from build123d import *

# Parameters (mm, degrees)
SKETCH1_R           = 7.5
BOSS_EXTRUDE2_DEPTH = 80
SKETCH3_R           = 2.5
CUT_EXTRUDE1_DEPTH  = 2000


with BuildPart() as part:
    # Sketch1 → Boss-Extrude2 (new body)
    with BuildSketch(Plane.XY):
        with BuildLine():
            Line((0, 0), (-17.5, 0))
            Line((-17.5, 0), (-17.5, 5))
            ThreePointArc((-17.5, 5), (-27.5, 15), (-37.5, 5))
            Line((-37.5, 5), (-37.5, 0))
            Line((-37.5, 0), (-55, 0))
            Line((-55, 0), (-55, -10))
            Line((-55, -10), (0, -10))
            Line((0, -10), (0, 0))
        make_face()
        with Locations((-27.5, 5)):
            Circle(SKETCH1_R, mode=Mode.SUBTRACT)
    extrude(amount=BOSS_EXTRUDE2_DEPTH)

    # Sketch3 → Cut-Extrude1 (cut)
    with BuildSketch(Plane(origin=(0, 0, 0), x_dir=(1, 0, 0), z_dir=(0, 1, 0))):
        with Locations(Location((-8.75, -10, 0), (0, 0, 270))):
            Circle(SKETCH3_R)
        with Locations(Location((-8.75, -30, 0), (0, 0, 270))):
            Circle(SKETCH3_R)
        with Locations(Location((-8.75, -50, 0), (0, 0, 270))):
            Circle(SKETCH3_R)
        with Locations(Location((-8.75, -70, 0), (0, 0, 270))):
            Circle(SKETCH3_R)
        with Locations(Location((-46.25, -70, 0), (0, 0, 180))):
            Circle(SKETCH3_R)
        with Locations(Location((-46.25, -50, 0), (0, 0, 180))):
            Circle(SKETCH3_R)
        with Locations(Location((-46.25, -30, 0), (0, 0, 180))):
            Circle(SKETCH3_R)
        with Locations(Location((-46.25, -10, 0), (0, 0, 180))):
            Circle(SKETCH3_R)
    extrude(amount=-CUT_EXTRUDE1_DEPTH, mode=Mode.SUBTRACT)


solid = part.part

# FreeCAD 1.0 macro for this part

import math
import FreeCAD as App
import Part
import Sketcher

V = App.Vector

doc = App.newDocument("Part")
body = doc.addObject("PartDesign::Body", "Body")

# Sketch on XY plane
sketch1 = doc.addObject("Sketcher::SketchObject", "Sketch")
body.addObject(sketch1)
sketch1.AttachmentSupport = (doc.XY_Plane, [""])
sketch1.MapMode = "FlatFace"
sketch1.addGeometry([
    Part.LineSegment(V(0, 0, 0), V(-17.5, 0, 0)),  # 0
    Part.LineSegment(V(-17.5, 0, 0), V(-17.5, 5, 0)),  # 1
    Part.ArcOfCircle(Part.Circle(V(-27.5, 5, 0), V(0, 0, 1), 10), math.radians(0), math.radians(180)),  # 2
    Part.LineSegment(V(-37.5, 5, 0), V(-37.5, 0, 0)),  # 3
    Part.LineSegment(V(-37.5, 0, 0), V(-55, 0, 0)),  # 4
    Part.LineSegment(V(-55, 0, 0), V(-55, -10, 0)),  # 5
    Part.LineSegment(V(-55, -10, 0), V(0, -10, 0)),  # 6
    Part.LineSegment(V(0, -10, 0), V(0, 0, 0)),  # 7
    Part.Circle(V(-27.5, 5, 0), V(0, 0, 1), 7.5),  # 8
], False)
sketch1.addConstraint([
    Sketcher.Constraint("Coincident", 0, 2, 1, 1),
    Sketcher.Constraint("Tangent", 1, 2, 2, 1),
    Sketcher.Constraint("Tangent", 2, 2, 3, 1),
    Sketcher.Constraint("Coincident", 3, 2, 4, 1),
    Sketcher.Constraint("Coincident", 4, 2, 5, 1),
    Sketcher.Constraint("Coincident", 5, 2, 6, 1),
    Sketcher.Constraint("Coincident", 6, 2, 7, 1),
    Sketcher.Constraint("Coincident", 7, 2, 0, 1),
    Sketcher.Constraint("Horizontal", 0),
    Sketcher.Constraint("Vertical", 1),
    Sketcher.Constraint("Vertical", 3),
    Sketcher.Constraint("Horizontal", 4),
    Sketcher.Constraint("Vertical", 5),
    Sketcher.Constraint("Horizontal", 6),
    Sketcher.Constraint("Vertical", 7),
    Sketcher.Constraint("Coincident", 7, 2, -1, 1),
    Sketcher.Constraint("Coincident", 8, 3, 2, 3),
    Sketcher.Constraint("PointOnObject", 3, 2, -1),
    Sketcher.Constraint("Equal", 0, 4),
    Sketcher.Constraint("Diameter", 8, 15.0),
    Sketcher.Constraint("Radius", 2, 10.0),
    Sketcher.Constraint("DistanceX", 6, 1, 6, 2, 55.0),
    Sketcher.Constraint("DistanceY", 1, 1, 1, 2, 5.0),
    Sketcher.Constraint("DistanceY", 5, 2, 5, 1, 10.0),
])
pad1 = doc.addObject("PartDesign::Pad", "Pad")
body.addObject(pad1)
pad1.Profile = sketch1
pad1.Length = 80

# Sketch on XZ plane
sketch2 = doc.addObject("Sketcher::SketchObject", "Sketch001")
body.addObject(sketch2)
sketch2.AttachmentSupport = (doc.XZ_Plane, [""])
sketch2.MapMode = "FlatFace"
sketch2.addGeometry([
    Part.Circle(V(-8.75, 10, 0), V(0, 0, 1), 2.5),  # 0
    Part.Circle(V(-8.75, 30, 0), V(0, 0, 1), 2.5),  # 1
    Part.Circle(V(-8.75, 50, 0), V(0, 0, 1), 2.5),  # 2
    Part.Circle(V(-8.75, 70, 0), V(0, 0, 1), 2.5),  # 3
    Part.Circle(V(-46.25, 70, 0), V(0, 0, 1), 2.5),  # 4
    Part.Circle(V(-46.25, 50, 0), V(0, 0, 1), 2.5),  # 5
    Part.Circle(V(-46.25, 30, 0), V(0, 0, 1), 2.5),  # 6
    Part.Circle(V(-46.25, 10, 0), V(0, 0, 1), 2.5),  # 7
], False)
sketch2.addConstraint([
    Sketcher.Constraint("Equal", 0, 1),
    Sketcher.Constraint("Equal", 1, 2),
    Sketcher.Constraint("Equal", 2, 3),
    Sketcher.Constraint("Equal", 3, 4),
    Sketcher.Constraint("Equal", 4, 5),
    Sketcher.Constraint("Equal", 5, 6),
    Sketcher.Constraint("Equal", 6, 7),
    Sketcher.Constraint("Horizontal", 3, 3, 4, 3),
    Sketcher.Constraint("Horizontal", 2, 3, 5, 3),
    Sketcher.Constraint("Horizontal", 1, 3, 6, 3),
    Sketcher.Constraint("Horizontal", 0, 3, 7, 3),
    Sketcher.Constraint("Vertical", 0, 3, 1, 3),
    Sketcher.Constraint("Vertical", 1, 3, 2, 3),
    Sketcher.Constraint("Vertical", 2, 3, 3, 3),
    Sketcher.Constraint("Vertical", 4, 3, 5, 3),
    Sketcher.Constraint("Vertical", 5, 3, 6, 3),
    Sketcher.Constraint("Vertical", 6, 3, 7, 3),
    Sketcher.Constraint("Diameter", 0, 5.0),
    Sketcher.Constraint("DistanceY", -1, 1, 0, 3, 10.0),
    Sketcher.Constraint("DistanceY", -1, 1, 1, 3, 30.0),
    Sketcher.Constraint("DistanceY", -1, 1, 2, 3, 50.0),
    Sketcher.Constraint("DistanceY", -1, 1, 3, 3, 70.0),
    Sketcher.Constraint("DistanceX", 4, 3, 3, 3, 37.5),
    Sketcher.Constraint("DistanceX", 0, 3, -1, 1, 8.75),
])
pocket1 = doc.addObject("PartDesign::Pocket", "Pocket")
body.addObject(pocket1)
pocket1.Profile = sketch2
pocket1.Length = 2000
pocket1.Reversed = True

doc.recompute()
